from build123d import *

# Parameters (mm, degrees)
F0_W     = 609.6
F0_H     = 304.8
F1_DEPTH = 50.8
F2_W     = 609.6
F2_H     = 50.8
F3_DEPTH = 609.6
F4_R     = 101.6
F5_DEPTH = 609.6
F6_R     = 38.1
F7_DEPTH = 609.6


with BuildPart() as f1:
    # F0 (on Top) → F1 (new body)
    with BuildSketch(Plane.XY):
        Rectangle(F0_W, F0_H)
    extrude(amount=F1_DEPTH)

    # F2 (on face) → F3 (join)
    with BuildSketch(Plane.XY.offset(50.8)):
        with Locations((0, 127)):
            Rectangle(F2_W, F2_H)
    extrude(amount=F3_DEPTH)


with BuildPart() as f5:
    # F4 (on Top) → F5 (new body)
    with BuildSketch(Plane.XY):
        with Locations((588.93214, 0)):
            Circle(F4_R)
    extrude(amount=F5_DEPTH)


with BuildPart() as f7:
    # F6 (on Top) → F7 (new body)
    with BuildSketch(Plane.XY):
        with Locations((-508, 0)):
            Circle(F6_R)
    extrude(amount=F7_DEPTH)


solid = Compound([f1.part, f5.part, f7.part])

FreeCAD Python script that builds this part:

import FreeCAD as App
import Part
import Sketcher
Q = App.Units.Quantity


def add_polygon(sketch, points):
    """Adds a closed chain of lines whose ends are joined by coincident constraints."""
    first, n = sketch.GeometryCount, len(points)
    for a, b in zip(points, points[1:] + points[:1]):
        sketch.addGeometry(Part.LineSegment(App.Vector(*a, 0), App.Vector(*b, 0)), False)
    for i in range(n):
        sketch.addConstraint(Sketcher.Constraint("Coincident", first + i, 2, first + (i + 1) % n, 1))

doc = App.newDocument("Part")
body = doc.addObject("PartDesign::Body", "Body")

# Sketch on XY plane
sketch1 = doc.addObject("Sketcher::SketchObject", "Sketch")
body.addObject(sketch1)
sketch1.AttachmentSupport = (doc.XY_Plane, [""])
sketch1.MapMode = "FlatFace"
add_polygon(sketch1, [(-304.8, 152.4), (-304.8, -152.4), (304.8, -152.4), (304.8, 152.4)])  # lines 0-3
sketch1.addConstraint(Sketcher.Constraint("Vertical", 0))
sketch1.addConstraint(Sketcher.Constraint("Horizontal", 1))
sketch1.addConstraint(Sketcher.Constraint("Vertical", 2))
sketch1.addConstraint(Sketcher.Constraint("Horizontal", 3))
sketch1.addConstraint(Sketcher.Constraint("Symmetric", 0, 2, 2, 2, -1, 1))
sketch1.addConstraint(Sketcher.Constraint("DistanceX", 1, 1, 1, 2, Q("24 in")))
sketch1.addConstraint(Sketcher.Constraint("DistanceY", 0, 2, 0, 1, Q("12 in")))
pad1 = doc.addObject("PartDesign::Pad", "Pad")
body.addObject(pad1)
pad1.Profile = sketch1
pad1.Length = Q("2 in")

# Sketch on XY plane
sketch2 = doc.addObject("Sketcher::SketchObject", "Sketch001")
body.addObject(sketch2)
sketch2.AttachmentSupport = (doc.XY_Plane, [""])
sketch2.MapMode = "FlatFace"
sketch2.AttachmentOffset = App.Placement(App.Vector(0, 0, 2 * 25.4), App.Rotation())
add_polygon(sketch2, [(-304.8, 152.4), (-304.8, 101.6), (304.8, 101.6), (304.8, 152.4)])  # lines 0-3
sketch2.addConstraint(Sketcher.Constraint("Vertical", 0))
sketch2.addConstraint(Sketcher.Constraint("Horizontal", 1))
sketch2.addConstraint(Sketcher.Constraint("Vertical", 2))
sketch2.addConstraint(Sketcher.Constraint("Horizontal", 3))
sketch2.addConstraint(Sketcher.Constraint("DistanceX", 1, 1, 1, 2, Q("24 in")))
sketch2.addConstraint(Sketcher.Constraint("DistanceY", 0, 2, 0, 1, Q("2 in")))
sketch2.addConstraint(Sketcher.Constraint("DistanceX", 0, 2, -1, 1, Q("12 in")))
sketch2.addConstraint(Sketcher.Constraint("DistanceY", -1, 1, 0, 2, Q("4 in")))
pad2 = doc.addObject("PartDesign::Pad", "Pad001")
body.addObject(pad2)
pad2.Profile = sketch2
pad2.Length = Q("24 in")
body2 = doc.addObject("PartDesign::Body", "Body001")

# Sketch on XY plane
sketch3 = doc.addObject("Sketcher::SketchObject", "Sketch002")
body2.addObject(sketch3)
sketch3.AttachmentSupport = (doc.getObject("XY_Plane001"), [""])
sketch3.MapMode = "FlatFace"
sketch3.addGeometry(Part.Circle(App.Vector(588.93214, 0, 0), App.Vector(0, 0, 1), 101.6), False)
sketch3.addConstraint(Sketcher.Constraint("PointOnObject", 0, 3, -1))
sketch3.addConstraint(Sketcher.Constraint("Diameter", 0, Q("8 in")))
sketch3.addConstraint(Sketcher.Constraint("DistanceX", -1, 1, 0, 3, 588.93214))
pad3 = doc.addObject("PartDesign::Pad", "Pad002")
body2.addObject(pad3)
pad3.Profile = sketch3
pad3.Length = Q("24 in")
body3 = doc.addObject("PartDesign::Body", "Body002")

# Sketch on XY plane
sketch4 = doc.addObject("Sketcher::SketchObject", "Sketch003")
body3.addObject(sketch4)
sketch4.AttachmentSupport = (doc.getObject("XY_Plane002"), [""])
sketch4.MapMode = "FlatFace"
sketch4.addGeometry(Part.Circle(App.Vector(-508, 0, 0), App.Vector(0, 0, 1), 38.1), False)
sketch4.addConstraint(Sketcher.Constraint("PointOnObject", 0, 3, -1))
sketch4.addConstraint(Sketcher.Constraint("Diameter", 0, Q("3 in")))
sketch4.addConstraint(Sketcher.Constraint("DistanceX", 0, 3, -1, 1, Q("20 in")))
pad4 = doc.addObject("PartDesign::Pad", "Pad003")
body3.addObject(pad4)
pad4.Profile = sketch4
pad4.Length = Q("24 in")

doc.recompute()
